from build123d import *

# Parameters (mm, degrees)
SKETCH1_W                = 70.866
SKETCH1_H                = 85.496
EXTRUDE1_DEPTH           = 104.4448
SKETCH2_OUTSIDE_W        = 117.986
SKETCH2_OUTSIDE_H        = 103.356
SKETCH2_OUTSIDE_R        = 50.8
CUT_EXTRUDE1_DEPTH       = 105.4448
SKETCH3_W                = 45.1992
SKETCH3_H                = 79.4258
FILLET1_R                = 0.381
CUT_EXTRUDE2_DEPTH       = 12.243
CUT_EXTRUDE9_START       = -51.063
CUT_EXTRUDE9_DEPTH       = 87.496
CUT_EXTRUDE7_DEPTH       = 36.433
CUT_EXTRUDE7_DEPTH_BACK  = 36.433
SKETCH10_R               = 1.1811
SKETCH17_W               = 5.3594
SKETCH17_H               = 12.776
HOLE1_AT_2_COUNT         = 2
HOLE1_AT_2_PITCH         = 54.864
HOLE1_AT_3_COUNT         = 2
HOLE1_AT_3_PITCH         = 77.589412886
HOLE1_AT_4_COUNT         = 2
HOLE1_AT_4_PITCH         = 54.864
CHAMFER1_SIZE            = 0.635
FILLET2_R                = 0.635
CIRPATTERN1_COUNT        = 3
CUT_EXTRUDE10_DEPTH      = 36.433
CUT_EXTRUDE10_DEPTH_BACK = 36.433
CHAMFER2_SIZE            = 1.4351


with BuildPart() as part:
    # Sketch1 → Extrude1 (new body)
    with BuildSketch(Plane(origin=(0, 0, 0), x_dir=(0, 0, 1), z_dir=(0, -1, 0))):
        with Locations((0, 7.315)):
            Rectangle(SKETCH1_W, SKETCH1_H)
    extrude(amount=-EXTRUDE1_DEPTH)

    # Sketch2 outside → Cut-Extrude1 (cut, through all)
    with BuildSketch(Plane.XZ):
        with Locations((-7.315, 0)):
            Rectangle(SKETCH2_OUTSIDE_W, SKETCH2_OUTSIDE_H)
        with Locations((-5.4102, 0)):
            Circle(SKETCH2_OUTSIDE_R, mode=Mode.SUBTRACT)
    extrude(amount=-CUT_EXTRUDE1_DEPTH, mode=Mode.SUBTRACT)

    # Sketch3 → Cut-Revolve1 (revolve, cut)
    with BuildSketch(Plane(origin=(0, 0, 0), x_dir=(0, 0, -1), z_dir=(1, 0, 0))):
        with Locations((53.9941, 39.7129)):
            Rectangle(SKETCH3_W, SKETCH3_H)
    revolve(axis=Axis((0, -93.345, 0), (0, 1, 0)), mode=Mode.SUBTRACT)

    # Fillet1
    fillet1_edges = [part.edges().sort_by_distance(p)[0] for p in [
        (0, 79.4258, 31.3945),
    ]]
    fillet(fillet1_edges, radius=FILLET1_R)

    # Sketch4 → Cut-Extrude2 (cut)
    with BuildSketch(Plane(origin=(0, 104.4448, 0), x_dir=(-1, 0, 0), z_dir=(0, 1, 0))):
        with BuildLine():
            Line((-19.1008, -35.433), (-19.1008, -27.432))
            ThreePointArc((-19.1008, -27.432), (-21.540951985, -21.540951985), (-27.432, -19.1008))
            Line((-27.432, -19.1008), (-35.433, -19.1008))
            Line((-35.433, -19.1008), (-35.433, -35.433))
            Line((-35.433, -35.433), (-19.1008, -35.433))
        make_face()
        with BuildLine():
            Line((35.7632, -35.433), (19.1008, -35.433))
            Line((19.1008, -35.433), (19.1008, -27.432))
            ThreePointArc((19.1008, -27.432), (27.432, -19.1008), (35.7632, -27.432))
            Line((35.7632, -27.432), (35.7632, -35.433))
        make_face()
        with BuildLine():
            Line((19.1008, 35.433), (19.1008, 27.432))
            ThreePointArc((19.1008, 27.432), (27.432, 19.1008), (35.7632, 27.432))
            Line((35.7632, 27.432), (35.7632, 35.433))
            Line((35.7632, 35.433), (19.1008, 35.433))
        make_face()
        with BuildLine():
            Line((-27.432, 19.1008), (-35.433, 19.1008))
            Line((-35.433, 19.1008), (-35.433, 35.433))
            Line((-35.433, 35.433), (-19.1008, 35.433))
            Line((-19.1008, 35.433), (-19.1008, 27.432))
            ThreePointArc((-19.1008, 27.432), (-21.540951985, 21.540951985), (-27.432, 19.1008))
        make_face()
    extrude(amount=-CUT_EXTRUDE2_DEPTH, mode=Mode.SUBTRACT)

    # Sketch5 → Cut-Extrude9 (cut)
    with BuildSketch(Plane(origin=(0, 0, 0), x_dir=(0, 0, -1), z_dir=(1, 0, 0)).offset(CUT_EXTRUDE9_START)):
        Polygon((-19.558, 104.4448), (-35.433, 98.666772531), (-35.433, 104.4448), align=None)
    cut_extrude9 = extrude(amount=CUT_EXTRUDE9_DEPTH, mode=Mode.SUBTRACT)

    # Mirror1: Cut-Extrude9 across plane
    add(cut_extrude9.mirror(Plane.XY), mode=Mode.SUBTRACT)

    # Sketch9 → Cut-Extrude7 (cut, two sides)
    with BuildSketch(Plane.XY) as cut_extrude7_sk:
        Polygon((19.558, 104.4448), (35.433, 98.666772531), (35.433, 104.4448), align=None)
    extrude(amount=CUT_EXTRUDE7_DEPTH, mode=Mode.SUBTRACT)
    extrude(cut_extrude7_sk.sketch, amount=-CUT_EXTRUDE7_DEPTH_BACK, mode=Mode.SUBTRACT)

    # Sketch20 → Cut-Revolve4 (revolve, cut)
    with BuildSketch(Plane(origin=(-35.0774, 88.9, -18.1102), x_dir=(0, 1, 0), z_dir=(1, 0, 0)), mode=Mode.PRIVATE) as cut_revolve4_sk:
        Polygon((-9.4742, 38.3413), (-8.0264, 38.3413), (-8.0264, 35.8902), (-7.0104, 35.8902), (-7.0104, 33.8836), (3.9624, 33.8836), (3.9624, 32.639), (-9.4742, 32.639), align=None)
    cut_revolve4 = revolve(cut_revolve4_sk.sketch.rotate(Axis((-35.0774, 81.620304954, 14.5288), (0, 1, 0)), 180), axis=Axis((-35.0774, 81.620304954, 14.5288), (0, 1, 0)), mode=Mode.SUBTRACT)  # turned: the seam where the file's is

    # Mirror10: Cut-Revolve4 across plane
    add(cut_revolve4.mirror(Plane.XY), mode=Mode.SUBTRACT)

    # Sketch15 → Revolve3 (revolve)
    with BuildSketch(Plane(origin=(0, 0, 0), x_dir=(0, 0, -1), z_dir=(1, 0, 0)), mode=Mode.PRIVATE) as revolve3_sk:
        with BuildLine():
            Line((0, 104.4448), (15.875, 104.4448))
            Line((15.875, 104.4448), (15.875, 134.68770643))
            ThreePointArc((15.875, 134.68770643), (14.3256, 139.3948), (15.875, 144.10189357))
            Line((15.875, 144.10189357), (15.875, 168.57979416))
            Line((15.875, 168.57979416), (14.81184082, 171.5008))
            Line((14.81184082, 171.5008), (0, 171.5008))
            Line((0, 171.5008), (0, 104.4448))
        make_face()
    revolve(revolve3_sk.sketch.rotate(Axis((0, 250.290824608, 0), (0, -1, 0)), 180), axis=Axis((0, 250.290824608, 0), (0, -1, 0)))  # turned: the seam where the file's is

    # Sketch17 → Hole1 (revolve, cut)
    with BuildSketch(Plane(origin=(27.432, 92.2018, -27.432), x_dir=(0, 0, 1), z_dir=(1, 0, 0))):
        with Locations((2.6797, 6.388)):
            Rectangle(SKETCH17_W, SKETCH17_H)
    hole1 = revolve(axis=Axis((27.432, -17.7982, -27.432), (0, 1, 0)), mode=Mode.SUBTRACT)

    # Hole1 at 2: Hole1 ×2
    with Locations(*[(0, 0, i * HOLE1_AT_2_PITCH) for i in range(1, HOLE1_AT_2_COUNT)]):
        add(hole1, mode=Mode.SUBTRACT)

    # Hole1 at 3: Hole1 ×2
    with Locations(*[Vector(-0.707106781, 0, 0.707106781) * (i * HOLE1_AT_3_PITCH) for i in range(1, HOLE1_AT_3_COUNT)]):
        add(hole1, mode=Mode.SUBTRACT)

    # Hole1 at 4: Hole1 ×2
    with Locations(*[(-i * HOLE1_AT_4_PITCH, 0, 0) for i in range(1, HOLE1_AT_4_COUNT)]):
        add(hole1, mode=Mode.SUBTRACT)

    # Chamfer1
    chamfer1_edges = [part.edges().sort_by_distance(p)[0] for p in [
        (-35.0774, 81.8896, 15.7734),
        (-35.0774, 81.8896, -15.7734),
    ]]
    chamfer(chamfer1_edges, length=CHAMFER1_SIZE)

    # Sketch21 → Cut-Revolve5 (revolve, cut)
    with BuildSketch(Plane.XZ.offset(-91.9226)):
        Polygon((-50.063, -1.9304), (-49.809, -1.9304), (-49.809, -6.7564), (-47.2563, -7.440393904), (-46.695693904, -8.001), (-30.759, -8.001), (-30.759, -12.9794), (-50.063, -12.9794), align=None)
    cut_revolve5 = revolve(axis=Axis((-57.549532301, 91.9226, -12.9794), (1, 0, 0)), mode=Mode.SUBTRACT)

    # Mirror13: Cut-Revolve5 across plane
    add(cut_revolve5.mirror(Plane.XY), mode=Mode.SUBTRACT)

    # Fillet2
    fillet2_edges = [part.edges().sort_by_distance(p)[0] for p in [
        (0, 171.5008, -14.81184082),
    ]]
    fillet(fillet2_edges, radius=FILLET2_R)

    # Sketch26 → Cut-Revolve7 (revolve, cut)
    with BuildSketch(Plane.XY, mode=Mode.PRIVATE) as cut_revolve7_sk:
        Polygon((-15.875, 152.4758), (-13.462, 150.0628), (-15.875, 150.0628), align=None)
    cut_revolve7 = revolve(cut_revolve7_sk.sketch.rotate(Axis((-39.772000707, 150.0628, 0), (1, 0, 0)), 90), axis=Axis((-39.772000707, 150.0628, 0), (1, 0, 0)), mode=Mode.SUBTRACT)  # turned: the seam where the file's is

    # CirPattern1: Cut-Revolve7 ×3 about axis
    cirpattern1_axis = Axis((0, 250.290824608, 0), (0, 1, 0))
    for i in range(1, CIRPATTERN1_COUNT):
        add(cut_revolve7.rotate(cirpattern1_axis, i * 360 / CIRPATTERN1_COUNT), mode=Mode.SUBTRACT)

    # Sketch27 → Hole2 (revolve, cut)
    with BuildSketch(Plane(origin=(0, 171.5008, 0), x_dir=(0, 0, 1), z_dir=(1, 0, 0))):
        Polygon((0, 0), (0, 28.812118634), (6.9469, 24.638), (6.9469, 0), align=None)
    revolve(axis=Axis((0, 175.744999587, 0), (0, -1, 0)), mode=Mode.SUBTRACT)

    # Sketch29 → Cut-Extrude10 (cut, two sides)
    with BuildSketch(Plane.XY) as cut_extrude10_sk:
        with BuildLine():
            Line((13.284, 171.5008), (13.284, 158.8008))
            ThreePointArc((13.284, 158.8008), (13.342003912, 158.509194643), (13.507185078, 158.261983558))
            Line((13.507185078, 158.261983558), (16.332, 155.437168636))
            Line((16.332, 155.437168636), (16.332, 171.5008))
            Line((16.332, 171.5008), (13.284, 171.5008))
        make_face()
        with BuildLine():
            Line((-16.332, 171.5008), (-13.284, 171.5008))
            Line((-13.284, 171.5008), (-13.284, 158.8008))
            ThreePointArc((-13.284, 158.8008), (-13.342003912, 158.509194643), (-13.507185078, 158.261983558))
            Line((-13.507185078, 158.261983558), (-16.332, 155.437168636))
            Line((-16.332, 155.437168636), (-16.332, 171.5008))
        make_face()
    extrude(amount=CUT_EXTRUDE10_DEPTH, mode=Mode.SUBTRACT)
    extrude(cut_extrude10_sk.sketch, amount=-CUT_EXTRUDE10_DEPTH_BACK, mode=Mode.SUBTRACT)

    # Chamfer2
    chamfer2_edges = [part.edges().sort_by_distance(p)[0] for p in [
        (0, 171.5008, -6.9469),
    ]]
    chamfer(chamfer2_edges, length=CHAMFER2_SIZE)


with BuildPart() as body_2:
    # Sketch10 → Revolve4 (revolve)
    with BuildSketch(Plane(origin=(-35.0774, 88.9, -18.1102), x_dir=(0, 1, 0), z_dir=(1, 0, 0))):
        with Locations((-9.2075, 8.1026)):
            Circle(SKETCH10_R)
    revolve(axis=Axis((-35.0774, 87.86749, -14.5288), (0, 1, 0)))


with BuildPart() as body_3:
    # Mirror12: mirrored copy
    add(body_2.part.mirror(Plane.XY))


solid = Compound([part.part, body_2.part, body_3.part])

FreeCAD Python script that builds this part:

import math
import FreeCAD as App
import Part
import Sketcher
from FreeCAD import Vector
Q = App.Units.Quantity


def edges_at(feature, points):
    """Names of the edges that pass closest to the given points."""
    edges = feature.Shape.Edges
    near = lambda p: min(range(len(edges)), key=lambda i: edges[i].distToShape(Part.Vertex(*p))[0])
    return sorted({f"Edge{near(p) + 1}" for p in points})

doc = App.newDocument("Part")
body = doc.addObject("PartDesign::Body", "Body")

# Sketch on XZ plane
sketch1 = doc.addObject("Sketcher::SketchObject", "Sketch")
body.addObject(sketch1)
sketch1.AttachmentSupport = (doc.XZ_Plane, [""])
sketch1.MapMode = "FlatFace"
sketch1.addGeometry(Part.LineSegment(Vector(-50, -35, 0), Vector(35, -35, 0)), False)
sketch1.addGeometry(Part.LineSegment(Vector(35, -35, 0), Vector(35, 35, 0)), False)
sketch1.addGeometry(Part.LineSegment(Vector(35, 35, 0), Vector(-50, 35, 0)), False)
sketch1.addGeometry(Part.LineSegment(Vector(-50, 35, 0), Vector(-50, -35, 0)), False)
sketch1.addConstraint(Sketcher.Constraint("Coincident", 0, 2, 1, 1))
sketch1.addConstraint(Sketcher.Constraint("Coincident", 1, 2, 2, 1))
sketch1.addConstraint(Sketcher.Constraint("Coincident", 2, 2, 3, 1))
sketch1.addConstraint(Sketcher.Constraint("Coincident", 3, 2, 0, 1))
sketch1.addConstraint(Sketcher.Constraint("Horizontal", 0))
sketch1.addConstraint(Sketcher.Constraint("Vertical", 1))
sketch1.addConstraint(Sketcher.Constraint("Horizontal", 2))
sketch1.addConstraint(Sketcher.Constraint("Vertical", 3))
sketch1.addConstraint(Sketcher.Constraint("DistanceY", 1, 1, 1, 2, Q("2.79 in")))
sketch1.addConstraint(Sketcher.Constraint("DistanceX", -1, 1, 0, 2, Q("1.395 in")))
sketch1.addConstraint(Sketcher.Constraint("DistanceY", 0, 2, -1, 1, Q("1.395 in")))
sketch1.addConstraint(Sketcher.Constraint("DistanceX", 0, 1, 0, 2, Q("85.496 mm")))
pad1 = doc.addObject("PartDesign::Pad", "Pad")
body.addObject(pad1)
pad1.Profile = sketch1
pad1.Length = Q("4.112 in")
pad1.Reversed = True

# Sketch on XZ plane
sketch2 = doc.addObject("Sketcher::SketchObject", "Sketch001")
body.addObject(sketch2)
sketch2.AttachmentSupport = (doc.XZ_Plane, [""])
sketch2.MapMode = "FlatFace"
sketch2.addGeometry(Part.LineSegment(Vector(-66, 52, 0), Vector(-66, -52, 0)), False)
sketch2.addGeometry(Part.LineSegment(Vector(-66, -52, 0), Vector(52, -52, 0)), False)
sketch2.addGeometry(Part.LineSegment(Vector(52, -52, 0), Vector(52, 52, 0)), False)
sketch2.addGeometry(Part.LineSegment(Vector(52, 52, 0), Vector(-66, 52, 0)), False)
sketch2.addGeometry(Part.Circle(Vector(-5, 0, 0), Vector(0, 0, 1), 51), False)
sketch2.addConstraint(Sketcher.Constraint("Coincident", 0, 2, 1, 1))
sketch2.addConstraint(Sketcher.Constraint("Coincident", 1, 2, 2, 1))
sketch2.addConstraint(Sketcher.Constraint("Coincident", 2, 2, 3, 1))
sketch2.addConstraint(Sketcher.Constraint("Coincident", 3, 2, 0, 1))
sketch2.addConstraint(Sketcher.Constraint("Vertical", 0))
sketch2.addConstraint(Sketcher.Constraint("Horizontal", 1))
sketch2.addConstraint(Sketcher.Constraint("Vertical", 2))
sketch2.addConstraint(Sketcher.Constraint("Horizontal", 3))
sketch2.addConstraint(Sketcher.Constraint("PointOnObject", 4, 3, -1))
sketch2.addConstraint(Sketcher.Constraint("Diameter", 4, Q("4 in")))
sketch2.addConstraint(Sketcher.Constraint("DistanceX", 4, 3, -1, 1, Q("0.213 in")))
sketch2.addConstraint(Sketcher.Constraint("DistanceX", 1, 1, 1, 2, Q("117.986 mm")))
sketch2.addConstraint(Sketcher.Constraint("DistanceY", 0, 2, 0, 1, Q("103.356 mm")))
sketch2.addConstraint(Sketcher.Constraint("DistanceX", 0, 2, -1, 1, Q("66.308 mm")))
sketch2.addConstraint(Sketcher.Constraint("DistanceY", 0, 2, -1, 1, Q("51.678 mm")))
pocket1 = doc.addObject("PartDesign::Pocket", "Pocket")
body.addObject(pocket1)
pocket1.Profile = sketch2
pocket1.Type = "ThroughAll"

# Sketch on YZ plane
sketch3 = doc.addObject("Sketcher::SketchObject", "Sketch002")
body.addObject(sketch3)
sketch3.AttachmentSupport = (doc.YZ_Plane, [""])
sketch3.MapMode = "FlatFace"
sketch3.addGeometry(Part.LineSegment(Vector(79, -31, 0), Vector(0, -31, 0)), False)
sketch3.addGeometry(Part.LineSegment(Vector(0, -31, 0), Vector(0, -77, 0)), False)
sketch3.addGeometry(Part.LineSegment(Vector(0, -77, 0), Vector(79, -77, 0)), False)
sketch3.addGeometry(Part.LineSegment(Vector(79, -77, 0), Vector(79, -31, 0)), False)
sketch3.addConstraint(Sketcher.Constraint("Coincident", 0, 2, 1, 1))
sketch3.addConstraint(Sketcher.Constraint("Coincident", 1, 2, 2, 1))
sketch3.addConstraint(Sketcher.Constraint("Coincident", 2, 2, 3, 1))
sketch3.addConstraint(Sketcher.Constraint("Coincident", 3, 2, 0, 1))
sketch3.addConstraint(Sketcher.Constraint("Horizontal", 0))
sketch3.addConstraint(Sketcher.Constraint("Vertical", 1))
sketch3.addConstraint(Sketcher.Constraint("Horizontal", 2))
sketch3.addConstraint(Sketcher.Constraint("Vertical", 3))
sketch3.addConstraint(Sketcher.Constraint("PointOnObject", 0, 2, -2))
sketch3.addConstraint(Sketcher.Constraint("DistanceX", 0, 2, 0, 1, Q("3.127 in")))
sketch3.addConstraint(Sketcher.Constraint("DistanceY", 1, 2, 1, 1, Q("45.1992 mm")))
sketch3.addConstraint(Sketcher.Constraint("DistanceY", 1, 2, -1, 1, Q("3.0155 in")))
groove = doc.addObject("PartDesign::Groove", "Groove")
body.addObject(groove)
groove.Profile = sketch3
groove.ReferenceAxis = (sketch3, ["H_Axis"])
groove.Angle = 360
doc.recompute()

fillet = doc.addObject("PartDesign::Fillet", "Fillet")
body.addObject(fillet)
fillet.Base = (groove, edges_at(groove, [(0, 79.426, 31.395)]))
fillet.Radius = Q("0.015 in")

# Sketch on XZ plane
sketch4 = doc.addObject("Sketcher::SketchObject", "Sketch003")
body.addObject(sketch4)
sketch4.AttachmentSupport = (doc.XZ_Plane, [""])
sketch4.MapMode = "FlatFace"
sketch4.AttachmentOffset = App.Placement(Vector(0, 0, -4.112 * 25.4), App.Rotation())
sketch4.addGeometry(Part.LineSegment(Vector(19, -35, 0), Vector(19, -27, 0)), False)
sketch4.addGeometry(Part.ArcOfCircle(Part.Circle(Vector(27, -27, 0), Vector(0, 0, 1), 8), math.radians(90), math.radians(180)), False)
sketch4.addGeometry(Part.LineSegment(Vector(27, -19, 0), Vector(35, -19, 0)), False)
sketch4.addGeometry(Part.LineSegment(Vector(35, -19, 0), Vector(35, -35, 0)), False)
sketch4.addGeometry(Part.LineSegment(Vector(35, -35, 0), Vector(19, -35, 0)), False)
sketch4.addGeometry(Part.LineSegment(Vector(-19, -35, 0), Vector(-36, -35, 0)), False)
sketch4.addGeometry(Part.LineSegment(Vector(-36, -35, 0), Vector(-36, -27, 0)), False)
sketch4.addGeometry(Part.ArcOfCircle(Part.Circle(Vector(-27, -27, 0), Vector(0, 0, 1), 8), math.radians(0), math.radians(180)), False)
sketch4.addGeometry(Part.LineSegment(Vector(-19, -27, 0), Vector(-19, -35, 0)), False)
sketch4.addGeometry(Part.LineSegment(Vector(-19, 35, 0), Vector(-19, 27, 0)), False)
sketch4.addGeometry(Part.ArcOfCircle(Part.Circle(Vector(-27, 27, 0), Vector(0, 0, 1), 8), math.radians(180), math.radians(360)), False)
sketch4.addGeometry(Part.LineSegment(Vector(-36, 27, 0), Vector(-36, 35, 0)), False)
sketch4.addGeometry(Part.LineSegment(Vector(-36, 35, 0), Vector(-19, 35, 0)), False)
sketch4.addGeometry(Part.LineSegment(Vector(35, 19, 0), Vector(27, 19, 0)), False)
sketch4.addGeometry(Part.ArcOfCircle(Part.Circle(Vector(27, 27, 0), Vector(0, 0, 1), 8), math.radians(-180), math.radians(-90)), False)
sketch4.addGeometry(Part.LineSegment(Vector(19, 27, 0), Vector(19, 35, 0)), False)
sketch4.addGeometry(Part.LineSegment(Vector(19, 35, 0), Vector(35, 35, 0)), False)
sketch4.addGeometry(Part.LineSegment(Vector(35, 35, 0), Vector(35, 19, 0)), False)
sketch4.addConstraint(Sketcher.Constraint("Tangent", 0, 2, 1, 2))
sketch4.addConstraint(Sketcher.Constraint("Tangent", 1, 1, 2, 1))
sketch4.addConstraint(Sketcher.Constraint("Coincident", 2, 2, 3, 1))
sketch4.addConstraint(Sketcher.Constraint("Coincident", 3, 2, 4, 1))
sketch4.addConstraint(Sketcher.Constraint("Coincident", 4, 2, 0, 1))
sketch4.addConstraint(Sketcher.Constraint("Coincident", 5, 2, 6, 1))
sketch4.addConstraint(Sketcher.Constraint("Tangent", 6, 2, 7, 2))
sketch4.addConstraint(Sketcher.Constraint("Tangent", 7, 1, 8, 1))
sketch4.addConstraint(Sketcher.Constraint("Coincident", 8, 2, 5, 1))
sketch4.addConstraint(Sketcher.Constraint("Tangent", 9, 2, 10, 2))
sketch4.addConstraint(Sketcher.Constraint("Tangent", 10, 1, 11, 1))
sketch4.addConstraint(Sketcher.Constraint("Coincident", 11, 2, 12, 1))
sketch4.addConstraint(Sketcher.Constraint("Coincident", 12, 2, 9, 1))
sketch4.addConstraint(Sketcher.Constraint("Tangent", 13, 2, 14, 2))
sketch4.addConstraint(Sketcher.Constraint("Tangent", 14, 1, 15, 1))
sketch4.addConstraint(Sketcher.Constraint("Coincident", 15, 2, 16, 1))
sketch4.addConstraint(Sketcher.Constraint("Coincident", 16, 2, 17, 1))
sketch4.addConstraint(Sketcher.Constraint("Coincident", 17, 2, 13, 1))
sketch4.addConstraint(Sketcher.Constraint("Vertical", 0))
sketch4.addConstraint(Sketcher.Constraint("Horizontal", 2))
sketch4.addConstraint(Sketcher.Constraint("Vertical", 3))
sketch4.addConstraint(Sketcher.Constraint("Horizontal", 4))
sketch4.addConstraint(Sketcher.Constraint("Horizontal", 5))
sketch4.addConstraint(Sketcher.Constraint("Vertical", 6))
sketch4.addConstraint(Sketcher.Constraint("Vertical", 8))
sketch4.addConstraint(Sketcher.Constraint("Vertical", 9))
sketch4.addConstraint(Sketcher.Constraint("Vertical", 11))
sketch4.addConstraint(Sketcher.Constraint("Horizontal", 12))
sketch4.addConstraint(Sketcher.Constraint("Horizontal", 13))
sketch4.addConstraint(Sketcher.Constraint("Vertical", 15))
sketch4.addConstraint(Sketcher.Constraint("Horizontal", 16))
sketch4.addConstraint(Sketcher.Constraint("Vertical", 17))
sketch4.addConstraint(Sketcher.Constraint("Equal", 1, 7))
sketch4.addConstraint(Sketcher.Constraint("Equal", 7, 10))
sketch4.addConstraint(Sketcher.Constraint("Equal", 10, 14))
sketch4.addConstraint(Sketcher.Constraint("Symmetric", 1, 3, 10, 3, -1, 1))
sketch4.addConstraint(Sketcher.Constraint("Symmetric", 7, 3, 14, 3, -1, 1))
sketch4.addConstraint(Sketcher.Constraint("Symmetric", 1, 3, 7, 3, -2))
sketch4.addConstraint(Sketcher.Constraint("Symmetric", 3, 2, 16, 2, -1))
sketch4.addConstraint(Sketcher.Constraint("Horizontal", 4, 2, 5, 2))
sketch4.addConstraint(Sketcher.Constraint("Horizontal", 12, 2, 15, 2))
sketch4.addConstraint(Sketcher.Constraint("Equal", 13, 0))
sketch4.addConstraint(Sketcher.Constraint("Radius", 1, Q("0.328 in")))
sketch4.addConstraint(Sketcher.Constraint("DistanceX", 2, 1, 2, 2, Q("0.315 in")))
sketch4.addConstraint(Sketcher.Constraint("DistanceX", -1, 1, 1, 3, Q("1.08 in")))
sketch4.addConstraint(Sketcher.Constraint("DistanceY", 1, 3, -1, 1, Q("1.08 in")))
pocket2 = doc.addObject("PartDesign::Pocket", "Pocket001")
body.addObject(pocket2)
pocket2.Profile = sketch4
pocket2.Length = 12.243
pocket2.Reversed = True

# Sketch on YZ plane
sketch5 = doc.addObject("Sketcher::SketchObject", "Sketch004")
body.addObject(sketch5)
sketch5.AttachmentSupport = (doc.YZ_Plane, [""])
sketch5.MapMode = "FlatFace"
sketch5.AttachmentOffset = App.Placement(Vector(0, 0, -51.063), App.Rotation())
sketch5.addGeometry(Part.LineSegment(Vector(99, 35, 0), Vector(104, 20, 0)), False)
sketch5.addGeometry(Part.LineSegment(Vector(104, 20, 0), Vector(104, 35, 0)), False)
sketch5.addGeometry(Part.LineSegment(Vector(104, 35, 0), Vector(99, 35, 0)), False)
sketch5.addConstraint(Sketcher.Constraint("Coincident", 0, 2, 1, 1))
sketch5.addConstraint(Sketcher.Constraint("Coincident", 1, 2, 2, 1))
sketch5.addConstraint(Sketcher.Constraint("Coincident", 2, 2, 0, 1))
sketch5.addConstraint(Sketcher.Constraint("Vertical", 1))
sketch5.addConstraint(Sketcher.Constraint("Horizontal", 2))
sketch5.addConstraint(Sketcher.Constraint("Angle", 0, Q("-70 deg")))
sketch5.addConstraint(Sketcher.Constraint("DistanceY", 1, 1, 1, 2, Q("0.625 in")))
sketch5.addConstraint(Sketcher.Constraint("DistanceY", -1, 1, 0, 2, Q("0.77 in")))
sketch5.addConstraint(Sketcher.Constraint("DistanceX", -1, 1, 0, 2, Q("4.112 in")))
pocket3 = doc.addObject("PartDesign::Pocket", "Pocket002")
body.addObject(pocket3)
pocket3.Profile = sketch5
pocket3.Length = 87.496
pocket3.Reversed = True
doc.recompute()

mirrored = doc.addObject("PartDesign::Mirrored", "Mirrored")
body.addObject(mirrored)
mirrored.Originals = [pocket3]
mirrored.MirrorPlane = (doc.XY_Plane, [""])
body.Tip = mirrored

# Sketch on XY plane
sketch6 = doc.addObject("Sketcher::SketchObject", "Sketch005")
body.addObject(sketch6)
sketch6.AttachmentSupport = (doc.XY_Plane, [""])
sketch6.MapMode = "FlatFace"
sketch6.addGeometry(Part.LineSegment(Vector(20, 104, 0), Vector(35, 99, 0)), False)
sketch6.addGeometry(Part.LineSegment(Vector(35, 99, 0), Vector(35, 104, 0)), False)
sketch6.addGeometry(Part.LineSegment(Vector(35, 104, 0), Vector(20, 104, 0)), False)
sketch6.addConstraint(Sketcher.Constraint("Coincident", 0, 2, 1, 1))
sketch6.addConstraint(Sketcher.Constraint("Coincident", 1, 2, 2, 1))
sketch6.addConstraint(Sketcher.Constraint("Coincident", 2, 2, 0, 1))
sketch6.addConstraint(Sketcher.Constraint("Vertical", 1))
sketch6.addConstraint(Sketcher.Constraint("Horizontal", 2))
sketch6.addConstraint(Sketcher.Constraint("Angle", 0, Q("-20 deg")))
sketch6.addConstraint(Sketcher.Constraint("DistanceX", 2, 2, 2, 1, Q("0.625 in")))
sketch6.addConstraint(Sketcher.Constraint("DistanceX", -1, 1, 2, 2, Q("0.77 in")))
sketch6.addConstraint(Sketcher.Constraint("DistanceY", -1, 1, 1, 2, Q("4.112 in")))
pocket4 = doc.addObject("PartDesign::Pocket", "Pocket003")
body.addObject(pocket4)
pocket4.Profile = sketch6
pocket4.Type = "ThroughAll"
pocket4.Midplane = True

# Sketch on YZ plane
sketch7 = doc.addObject("Sketcher::SketchObject", "Sketch006")
body.addObject(sketch7)
sketch7.AttachmentSupport = (doc.YZ_Plane, [""])
sketch7.MapMode = "FlatFace"
sketch7.AttachmentOffset = App.Placement(Vector(0, 0, -1.381 * 25.4), App.Rotation())
sketch7.addGeometry(Part.LineSegment(Vector(80.9, 20.2, 0), Vector(79.4, 20.2, 0)), False)
sketch7.addGeometry(Part.LineSegment(Vector(79.4, 20.2, 0), Vector(79.4, 14.5, 0)), False)
sketch7.addGeometry(Part.LineSegment(Vector(79.4, 14.5, 0), Vector(92.9, 14.5, 0)), False)
sketch7.addGeometry(Part.LineSegment(Vector(92.9, 14.5, 0), Vector(92.9, 15.8, 0)), False)
sketch7.addGeometry(Part.LineSegment(Vector(92.9, 15.8, 0), Vector(81.9, 15.8, 0)), False)
sketch7.addGeometry(Part.LineSegment(Vector(81.9, 15.8, 0), Vector(81.9, 17.8, 0)), False)
sketch7.addGeometry(Part.LineSegment(Vector(81.9, 17.8, 0), Vector(80.9, 17.8, 0)), False)
sketch7.addGeometry(Part.LineSegment(Vector(80.9, 17.8, 0), Vector(80.9, 20.2, 0)), False)
sketch7.addGeometry(Part.LineSegment(Vector(79.4, 14.5, 0), Vector(92.9, 14.5, 0)), True)  # axis
sketch7.addConstraint(Sketcher.Constraint("Coincident", 0, 2, 1, 1))
sketch7.addConstraint(Sketcher.Constraint("Coincident", 1, 2, 2, 1))
sketch7.addConstraint(Sketcher.Constraint("Coincident", 2, 2, 3, 1))
sketch7.addConstraint(Sketcher.Constraint("Coincident", 3, 2, 4, 1))
sketch7.addConstraint(Sketcher.Constraint("Coincident", 4, 2, 5, 1))
sketch7.addConstraint(Sketcher.Constraint("Coincident", 5, 2, 6, 1))
sketch7.addConstraint(Sketcher.Constraint("Coincident", 6, 2, 7, 1))
sketch7.addConstraint(Sketcher.Constraint("Coincident", 7, 2, 0, 1))
sketch7.addConstraint(Sketcher.Constraint("Horizontal", 0))
sketch7.addConstraint(Sketcher.Constraint("Vertical", 1))
sketch7.addConstraint(Sketcher.Constraint("Horizontal", 2))
sketch7.addConstraint(Sketcher.Constraint("Vertical", 3))
sketch7.addConstraint(Sketcher.Constraint("Horizontal", 4))
sketch7.addConstraint(Sketcher.Constraint("Vertical", 5))
sketch7.addConstraint(Sketcher.Constraint("Horizontal", 6))
sketch7.addConstraint(Sketcher.Constraint("Vertical", 7))
sketch7.addConstraint(Sketcher.Constraint("Horizontal", 8))
sketch7.addConstraint(Sketcher.Constraint("Coincident", 8, 1, 1, 2))
sketch7.addConstraint(Sketcher.Constraint("Vertical", 3, 2, 8, 2))
sketch7.addConstraint(Sketcher.Constraint("DistanceX", 6, 2, 6, 1, Q("0.04 in")))
sketch7.addConstraint(Sketcher.Constraint("DistanceY", -1, 1, 5, 2, Q("0.7 in")))
sketch7.addConstraint(Sketcher.Constraint("DistanceX", 0, 2, 0, 1, Q("0.057 in")))
sketch7.addConstraint(Sketcher.Constraint("DistanceX", 2, 1, 2, 2, Q("0.529 in")))
sketch7.addConstraint(Sketcher.Constraint("DistanceY", 3, 1, 3, 2, Q("0.049 in")))
sketch7.addConstraint(Sketcher.Constraint("DistanceY", 5, 1, 5, 2, Q("0.079 in")))
sketch7.addConstraint(Sketcher.Constraint("DistanceY", 1, 2, 1, 1, Q("0.2245 in")))
sketch7.addConstraint(Sketcher.Constraint("DistanceX", -1, 1, 0, 2, Q("3.127 in")))
groove2 = doc.addObject("PartDesign::Groove", "Groove001")
body.addObject(groove2)
groove2.Profile = sketch7
groove2.ReferenceAxis = (sketch7, ["Axis0"])
groove2.Angle = 360
doc.recompute()

mirrored2 = doc.addObject("PartDesign::Mirrored", "Mirrored001")
body.addObject(mirrored2)
mirrored2.Originals = [groove2]
mirrored2.MirrorPlane = (doc.XY_Plane, [""])
body.Tip = mirrored2

# Sketch on YZ plane
sketch8 = doc.addObject("Sketcher::SketchObject", "Sketch007")
body.addObject(sketch8)
sketch8.AttachmentSupport = (doc.YZ_Plane, [""])
sketch8.MapMode = "FlatFace"
sketch8.addGeometry(Part.LineSegment(Vector(104.4, 0, 0), Vector(104.4, -15.9, 0)), False)
sketch8.addGeometry(Part.LineSegment(Vector(104.4, -15.9, 0), Vector(134.7, -15.9, 0)), False)
sketch8.addGeometry(Part.ArcOfCircle(Part.Circle(Vector(139.4, -22.3, 0), Vector(0, 0, 1), 7.9), math.radians(54), math.radians(126)), False)
sketch8.addGeometry(Part.LineSegment(Vector(144.1, -15.9, 0), Vector(168.6, -15.9, 0)), False)
sketch8.addGeometry(Part.LineSegment(Vector(168.6, -15.9, 0), Vector(171.5, -14.8, 0)), False)
sketch8.addGeometry(Part.LineSegment(Vector(171.5, -14.8, 0), Vector(171.5, 0, 0)), False)
sketch8.addGeometry(Part.LineSegment(Vector(171.5, 0, 0), Vector(104.4, 0, 0)), False)
sketch8.addConstraint(Sketcher.Constraint("Coincident", 0, 2, 1, 1))
sketch8.addConstraint(Sketcher.Constraint("Coincident", 1, 2, 2, 2))
sketch8.addConstraint(Sketcher.Constraint("Coincident", 2, 1, 3, 1))
sketch8.addConstraint(Sketcher.Constraint("Coincident", 3, 2, 4, 1))
sketch8.addConstraint(Sketcher.Constraint("Coincident", 4, 2, 5, 1))
sketch8.addConstraint(Sketcher.Constraint("Coincident", 5, 2, 6, 1))
sketch8.addConstraint(Sketcher.Constraint("Coincident", 6, 2, 0, 1))
sketch8.addConstraint(Sketcher.Constraint("Vertical", 0))
sketch8.addConstraint(Sketcher.Constraint("Horizontal", 1))
sketch8.addConstraint(Sketcher.Constraint("Horizontal", 3))
sketch8.addConstraint(Sketcher.Constraint("Vertical", 5))
sketch8.addConstraint(Sketcher.Constraint("Horizontal", 6))
sketch8.addConstraint(Sketcher.Constraint("PointOnObject", 5, 2, -1))
sketch8.addConstraint(Sketcher.Constraint("Horizontal", 1, 2, 2, 1))
sketch8.addConstraint(Sketcher.Constraint("Angle", 4, Q("20 deg")))
sketch8.addConstraint(Sketcher.Constraint("Radius", 2, Q("0.312 in")))
sketch8.addConstraint(Sketcher.Constraint("DistanceX", 6, 2, 6, 1, Q("2.64 in")))
sketch8.addConstraint(Sketcher.Constraint("DistanceY", 0, 2, 0, 1, Q("0.625 in")))
sketch8.addConstraint(Sketcher.Constraint("DistanceY", 2, 3, -1, 1, Q("0.876 in")))
sketch8.addConstraint(Sketcher.Constraint("DistanceX", -1, 1, 0, 2, Q("4.112 in")))
sketch8.addConstraint(Sketcher.Constraint("DistanceX", 3, 1, 3, 2, Q("24.477901 mm")))
sketch8.addConstraint(Sketcher.Constraint("DistanceY", 5, 1, 5, 2, Q("14.811841 mm")))
revolution = doc.addObject("PartDesign::Revolution", "Revolution")
body.addObject(revolution)
revolution.Profile = sketch8
revolution.ReferenceAxis = (sketch8, ["H_Axis"])
revolution.Angle = 360

# Sketch on YZ plane
sketch9 = doc.addObject("Sketcher::SketchObject", "Sketch008")
body.addObject(sketch9)
sketch9.AttachmentSupport = (doc.YZ_Plane, [""])
sketch9.MapMode = "FlatFace"
sketch9.AttachmentOffset = App.Placement(Vector(0, 0, 1.08 * 25.4), App.Rotation())
sketch9.addGeometry(Part.LineSegment(Vector(79, -27, 0), Vector(92, -27, 0)), False)
sketch9.addGeometry(Part.LineSegment(Vector(92, -27, 0), Vector(92, -22, 0)), False)
sketch9.addGeometry(Part.LineSegment(Vector(92, -22, 0), Vector(79, -22, 0)), False)
sketch9.addGeometry(Part.LineSegment(Vector(79, -22, 0), Vector(79, -27, 0)), False)
sketch9.addGeometry(Part.LineSegment(Vector(79, -27, 0), Vector(92, -27, 0)), True)  # axis
sketch9.addConstraint(Sketcher.Constraint("Coincident", 0, 2, 1, 1))
sketch9.addConstraint(Sketcher.Constraint("Coincident", 1, 2, 2, 1))
sketch9.addConstraint(Sketcher.Constraint("Coincident", 2, 2, 3, 1))
sketch9.addConstraint(Sketcher.Constraint("Coincident", 3, 2, 0, 1))
sketch9.addConstraint(Sketcher.Constraint("Horizontal", 0))
sketch9.addConstraint(Sketcher.Constraint("Vertical", 1))
sketch9.addConstraint(Sketcher.Constraint("Horizontal", 2))
sketch9.addConstraint(Sketcher.Constraint("Vertical", 3))
sketch9.addConstraint(Sketcher.Constraint("Horizontal", 4))
sketch9.addConstraint(Sketcher.Constraint("Coincident", 4, 1, 3, 2))
sketch9.addConstraint(Sketcher.Constraint("Vertical", 1, 2, 4, 2))
sketch9.addConstraint(Sketcher.Constraint("DistanceY", 1, 1, 1, 2, Q("0.211 in")))
sketch9.addConstraint(Sketcher.Constraint("DistanceY", 0, 2, -1, 1, Q("1.08 in")))
sketch9.addConstraint(Sketcher.Constraint("DistanceX", -1, 1, 2, 2, Q("3.127 in")))
sketch9.addConstraint(Sketcher.Constraint("DistanceX", 0, 1, 0, 2, Q("12.776 mm")))
groove3 = doc.addObject("PartDesign::Groove", "Groove002")
body.addObject(groove3)
groove3.Profile = sketch9
groove3.ReferenceAxis = (sketch9, ["Axis0"])
groove3.Angle = 360
doc.recompute()

linearpattern = doc.addObject("PartDesign::LinearPattern", "LinearPattern")
body.addObject(linearpattern)
linearpattern.Originals = [groove3]
linearpattern.Direction = (doc.Z_Axis, [""])
linearpattern.Mode = "offset"
linearpattern.Offset = Q("2.16 in")
linearpattern.Occurrences = 2
body.Tip = linearpattern
doc.recompute()

datumline = doc.addObject("PartDesign::Line", "DatumLine")
body.addObject(datumline)
datumline.Placement = App.Placement(Vector(0, 0, 0), App.Rotation(Vector(0, 0, 1), Vector(-0.707106781, 0, 0.707106781)))
linearpattern2 = doc.addObject("PartDesign::LinearPattern", "LinearPattern001")
body.addObject(linearpattern2)
linearpattern2.Originals = [groove3]
linearpattern2.Direction = (datumline, [""])
linearpattern2.Mode = "offset"
linearpattern2.Offset = 77.589413
linearpattern2.Occurrences = 2
body.Tip = linearpattern2
doc.recompute()

linearpattern3 = doc.addObject("PartDesign::LinearPattern", "LinearPattern002")
body.addObject(linearpattern3)
linearpattern3.Originals = [groove3]
linearpattern3.Direction = (doc.X_Axis, [""])
linearpattern3.Mode = "offset"
linearpattern3.Offset = Q("2.16 in")
linearpattern3.Occurrences = 2
linearpattern3.Reversed = True
body.Tip = linearpattern3
doc.recompute()

chamfer = doc.addObject("PartDesign::Chamfer", "Chamfer")
body.addObject(chamfer)
chamfer.Base = (linearpattern3, edges_at(linearpattern3, [(-35.077, 81.89, 15.773), (-35.077, 81.89, -15.773)]))
chamfer.Size = Q("0.025 in")

# Sketch on XZ plane
sketch10 = doc.addObject("Sketcher::SketchObject", "Sketch009")
body.addObject(sketch10)
sketch10.AttachmentSupport = (doc.XZ_Plane, [""])
sketch10.MapMode = "FlatFace"
sketch10.AttachmentOffset = App.Placement(Vector(0, 0, -3.619 * 25.4), App.Rotation())
sketch10.addGeometry(Part.LineSegment(Vector(-49.81, -1.93, 0), Vector(-50.06, -1.93, 0)), False)
sketch10.addGeometry(Part.LineSegment(Vector(-50.06, -1.93, 0), Vector(-50.06, -12.98, 0)), False)
sketch10.addGeometry(Part.LineSegment(Vector(-50.06, -12.98, 0), Vector(-30.76, -12.98, 0)), False)
sketch10.addGeometry(Part.LineSegment(Vector(-30.76, -12.98, 0), Vector(-30.76, -8, 0)), False)
sketch10.addGeometry(Part.LineSegment(Vector(-30.76, -8, 0), Vector(-46.7, -8, 0)), False)
sketch10.addGeometry(Part.LineSegment(Vector(-46.7, -8, 0), Vector(-47.26, -7.44, 0)), False)
sketch10.addGeometry(Part.LineSegment(Vector(-47.26, -7.44, 0), Vector(-49.81, -6.76, 0)), False)
sketch10.addGeometry(Part.LineSegment(Vector(-49.81, -6.76, 0), Vector(-49.81, -1.93, 0)), False)
sketch10.addGeometry(Part.LineSegment(Vector(-50.06, -12.98, 0), Vector(-30.76, -12.98, 0)), True)  # axis
sketch10.addConstraint(Sketcher.Constraint("Coincident", 0, 2, 1, 1))
sketch10.addConstraint(Sketcher.Constraint("Coincident", 1, 2, 2, 1))
sketch10.addConstraint(Sketcher.Constraint("Coincident", 2, 2, 3, 1))
sketch10.addConstraint(Sketcher.Constraint("Coincident", 3, 2, 4, 1))
sketch10.addConstraint(Sketcher.Constraint("Coincident", 4, 2, 5, 1))
sketch10.addConstraint(Sketcher.Constraint("Coincident", 5, 2, 6, 1))
sketch10.addConstraint(Sketcher.Constraint("Coincident", 6, 2, 7, 1))
sketch10.addConstraint(Sketcher.Constraint("Coincident", 7, 2, 0, 1))
sketch10.addConstraint(Sketcher.Constraint("Horizontal", 0))
sketch10.addConstraint(Sketcher.Constraint("Vertical", 1))
sketch10.addConstraint(Sketcher.Constraint("Horizontal", 2))
sketch10.addConstraint(Sketcher.Constraint("Vertical", 3))
sketch10.addConstraint(Sketcher.Constraint("Horizontal", 4))
sketch10.addConstraint(Sketcher.Constraint("Vertical", 7))
sketch10.addConstraint(Sketcher.Constraint("Horizontal", 8))
sketch10.addConstraint(Sketcher.Constraint("Coincident", 8, 1, 1, 2))
sketch10.addConstraint(Sketcher.Constraint("Vertical", 3, 2, 8, 2))
sketch10.addConstraint(Sketcher.Constraint("Angle", 5, Q("135 deg")))
sketch10.addConstraint(Sketcher.Constraint("Angle", 6, Q("165 deg")))
sketch10.addConstraint(Sketcher.Constraint("DistanceX", 0, 2, 0, 1, Q("0.01 in")))
sketch10.addConstraint(Sketcher.Constraint("DistanceX", 2, 1, 2, 2, Q("0.76 in")))
sketch10.addConstraint(Sketcher.Constraint("DistanceY", 7, 1, 7, 2, Q("0.19 in")))
sketch10.addConstraint(Sketcher.Constraint("DistanceY", 1, 2, 1, 1, Q("0.435 in")))
sketch10.addConstraint(Sketcher.Constraint("DistanceY", 3, 1, 3, 2, Q("0.196 in")))
sketch10.addConstraint(Sketcher.Constraint("DistanceY", 0, 2, -1, 1, Q("0.076 in")))
sketch10.addConstraint(Sketcher.Constraint("DistanceX", 0, 2, 5, 2, Q("0.1105 in")))
sketch10.addConstraint(Sketcher.Constraint("DistanceX", 0, 2, -1, 1, Q("50.063 mm")))
groove4 = doc.addObject("PartDesign::Groove", "Groove003")
body.addObject(groove4)
groove4.Profile = sketch10
groove4.ReferenceAxis = (sketch10, ["Axis0"])
groove4.Angle = 360
doc.recompute()

mirrored3 = doc.addObject("PartDesign::Mirrored", "Mirrored002")
body.addObject(mirrored3)
mirrored3.Originals = [groove4]
mirrored3.MirrorPlane = (doc.XY_Plane, [""])
body.Tip = mirrored3
doc.recompute()

fillet2 = doc.addObject("PartDesign::Fillet", "Fillet001")
body.addObject(fillet2)
fillet2.Base = (mirrored3, edges_at(mirrored3, [(0, 171.501, -14.812)]))
fillet2.Radius = Q("0.025 in")

# Sketch on XY plane
sketch11 = doc.addObject("Sketcher::SketchObject", "Sketch010")
body.addObject(sketch11)
sketch11.AttachmentSupport = (doc.XY_Plane, [""])
sketch11.MapMode = "FlatFace"
sketch11.addGeometry(Part.LineSegment(Vector(-13.5, 150.1, 0), Vector(-15.9, 152.5, 0)), False)
sketch11.addGeometry(Part.LineSegment(Vector(-15.9, 152.5, 0), Vector(-15.9, 150.1, 0)), False)
sketch11.addGeometry(Part.LineSegment(Vector(-15.9, 150.1, 0), Vector(-13.5, 150.1, 0)), False)
sketch11.addGeometry(Part.LineSegment(Vector(-15.9, 150.1, 0), Vector(-13.5, 150.1, 0)), True)  # axis
sketch11.addConstraint(Sketcher.Constraint("Coincident", 0, 2, 1, 1))
sketch11.addConstraint(Sketcher.Constraint("Coincident", 1, 2, 2, 1))
sketch11.addConstraint(Sketcher.Constraint("Coincident", 2, 2, 0, 1))
sketch11.addConstraint(Sketcher.Constraint("Vertical", 1))
sketch11.addConstraint(Sketcher.Constraint("Horizontal", 2))
sketch11.addConstraint(Sketcher.Constraint("Horizontal", 3))
sketch11.addConstraint(Sketcher.Constraint("Coincident", 3, 1, 1, 2))
sketch11.addConstraint(Sketcher.Constraint("Equal", 2, 3))
sketch11.addConstraint(Sketcher.Constraint("Equal", 3, 1))
sketch11.addConstraint(Sketcher.Constraint("DistanceX", 2, 1, 2, 2, Q("0.095 in")))
sketch11.addConstraint(Sketcher.Constraint("DistanceX", 2, 2, -1, 1, Q("0.53 in")))
sketch11.addConstraint(Sketcher.Constraint("DistanceY", -1, 1, 0, 2, Q("152.4758 mm")))
groove5 = doc.addObject("PartDesign::Groove", "Groove004")
body.addObject(groove5)
groove5.Profile = sketch11
groove5.ReferenceAxis = (sketch11, ["Axis0"])
groove5.Angle = 360
doc.recompute()

polarpattern = doc.addObject("PartDesign::PolarPattern", "PolarPattern")
body.addObject(polarpattern)
polarpattern.Originals = [groove5]
polarpattern.Axis = (doc.Y_Axis, [""])
polarpattern.Angle = 360
polarpattern.Occurrences = 3
body.Tip = polarpattern

# Sketch on YZ plane
sketch12 = doc.addObject("Sketcher::SketchObject", "Sketch011")
body.addObject(sketch12)
sketch12.AttachmentSupport = (doc.YZ_Plane, [""])
sketch12.MapMode = "FlatFace"
sketch12.addGeometry(Part.LineSegment(Vector(143, 0, 0), Vector(172, 0, 0)), False)
sketch12.addGeometry(Part.LineSegment(Vector(172, 0, 0), Vector(172, 7, 0)), False)
sketch12.addGeometry(Part.LineSegment(Vector(172, 7, 0), Vector(147, 7, 0)), False)
sketch12.addGeometry(Part.LineSegment(Vector(147, 7, 0), Vector(143, 0, 0)), False)
sketch12.addConstraint(Sketcher.Constraint("Coincident", 0, 2, 1, 1))
sketch12.addConstraint(Sketcher.Constraint("Coincident", 1, 2, 2, 1))
sketch12.addConstraint(Sketcher.Constraint("Coincident", 2, 2, 3, 1))
sketch12.addConstraint(Sketcher.Constraint("Coincident", 3, 2, 0, 1))
sketch12.addConstraint(Sketcher.Constraint("Horizontal", 0))
sketch12.addConstraint(Sketcher.Constraint("Vertical", 1))
sketch12.addConstraint(Sketcher.Constraint("Horizontal", 2))
sketch12.addConstraint(Sketcher.Constraint("PointOnObject", 0, 2, -1))
sketch12.addConstraint(Sketcher.Constraint("Angle", 3, Q("-121 deg")))
sketch12.addConstraint(Sketcher.Constraint("DistanceX", 2, 2, 2, 1, Q("0.97 in")))
sketch12.addConstraint(Sketcher.Constraint("DistanceY", 1, 1, 1, 2, Q("0.2735 in")))
sketch12.addConstraint(Sketcher.Constraint("DistanceX", -1, 1, 0, 2, Q("6.752 in")))
groove6 = doc.addObject("PartDesign::Groove", "Groove005")
body.addObject(groove6)
groove6.Profile = sketch12
groove6.ReferenceAxis = (sketch12, ["H_Axis"])
groove6.Angle = 360

# Sketch on XY plane
sketch13 = doc.addObject("Sketcher::SketchObject", "Sketch012")
body.addObject(sketch13)
sketch13.AttachmentSupport = (doc.XY_Plane, [""])
sketch13.MapMode = "FlatFace"
sketch13.addGeometry(Part.LineSegment(Vector(13.3, 171.5, 0), Vector(13.3, 158.8, 0)), False)
sketch13.addGeometry(Part.ArcOfCircle(Part.Circle(Vector(14, 158.8, 0), Vector(0, 0, 1), 0.8), math.radians(180), math.radians(225)), False)
sketch13.addGeometry(Part.LineSegment(Vector(13.5, 158.3, 0), Vector(16.3, 155.4, 0)), False)
sketch13.addGeometry(Part.LineSegment(Vector(16.3, 155.4, 0), Vector(16.3, 171.5, 0)), False)
sketch13.addGeometry(Part.LineSegment(Vector(16.3, 171.5, 0), Vector(13.3, 171.5, 0)), False)
sketch13.addGeometry(Part.LineSegment(Vector(-13.3, 171.5, 0), Vector(-16.3, 171.5, 0)), False)
sketch13.addGeometry(Part.LineSegment(Vector(-16.3, 171.5, 0), Vector(-16.3, 155.4, 0)), False)
sketch13.addGeometry(Part.LineSegment(Vector(-16.3, 155.4, 0), Vector(-13.5, 158.3, 0)), False)
sketch13.addGeometry(Part.ArcOfCircle(Part.Circle(Vector(-14, 158.8, 0), Vector(0, 0, 1), 0.8), math.radians(-45), math.radians(0)), False)
sketch13.addGeometry(Part.LineSegment(Vector(-13.3, 158.8, 0), Vector(-13.3, 171.5, 0)), False)
sketch13.addConstraint(Sketcher.Constraint("Tangent", 0, 2, 1, 1))
sketch13.addConstraint(Sketcher.Constraint("Tangent", 1, 2, 2, 1))
sketch13.addConstraint(Sketcher.Constraint("Coincident", 2, 2, 3, 1))
sketch13.addConstraint(Sketcher.Constraint("Coincident", 3, 2, 4, 1))
sketch13.addConstraint(Sketcher.Constraint("Coincident", 4, 2, 0, 1))
sketch13.addConstraint(Sketcher.Constraint("Coincident", 5, 2, 6, 1))
sketch13.addConstraint(Sketcher.Constraint("Coincident", 6, 2, 7, 1))
sketch13.addConstraint(Sketcher.Constraint("Tangent", 7, 2, 8, 1))
sketch13.addConstraint(Sketcher.Constraint("Tangent", 8, 2, 9, 1))
sketch13.addConstraint(Sketcher.Constraint("Coincident", 9, 2, 5, 1))
sketch13.addConstraint(Sketcher.Constraint("Vertical", 0))
sketch13.addConstraint(Sketcher.Constraint("Vertical", 3))
sketch13.addConstraint(Sketcher.Constraint("Horizontal", 4))
sketch13.addConstraint(Sketcher.Constraint("Horizontal", 5))
sketch13.addConstraint(Sketcher.Constraint("Vertical", 6))
sketch13.addConstraint(Sketcher.Constraint("Vertical", 9))
sketch13.addConstraint(Sketcher.Constraint("Equal", 1, 8))
sketch13.addConstraint(Sketcher.Constraint("Symmetric", 1, 3, 8, 3, -2))
sketch13.addConstraint(Sketcher.Constraint("Symmetric", 3, 2, 5, 2, -2))
sketch13.addConstraint(Sketcher.Constraint("Perpendicular", 2, 7))
sketch13.addConstraint(Sketcher.Constraint("Horizontal", 2, 2, 6, 2))
sketch13.addConstraint(Sketcher.Constraint("Radius", 1, Q("0.0300001 in")))
sketch13.addConstraint(Sketcher.Constraint("DistanceY", 0, 2, 0, 1, Q("0.5 in")))
sketch13.addConstraint(Sketcher.Constraint("DistanceX", 4, 2, 4, 1, Q("0.12 in")))
sketch13.addConstraint(Sketcher.Constraint("DistanceY", -1, 1, 1, 3, Q("6.252 in")))
sketch13.addConstraint(Sketcher.Constraint("DistanceX", -1, 1, 1, 3, Q("14.046002 mm")))
pocket5 = doc.addObject("PartDesign::Pocket", "Pocket004")
body.addObject(pocket5)
pocket5.Profile = sketch13
pocket5.Type = "ThroughAll"
pocket5.Midplane = True
doc.recompute()

chamfer2 = doc.addObject("PartDesign::Chamfer", "Chamfer001")
body.addObject(chamfer2)
chamfer2.Base = (pocket5, edges_at(pocket5, [(0, 171.501, -6.947)]))
chamfer2.Size = Q("0.0565 in")
body2 = doc.addObject("PartDesign::Body", "Body001")

# Sketch on YZ plane
sketch14 = doc.addObject("Sketcher::SketchObject", "Sketch013")
body2.addObject(sketch14)
sketch14.AttachmentSupport = (doc.getObject("YZ_Plane001"), [""])
sketch14.MapMode = "FlatFace"
sketch14.AttachmentOffset = App.Placement(Vector(0, 0, -1.381 * 25.4), App.Rotation())
sketch14.addGeometry(Part.Circle(Vector(79.7, -10, 0), Vector(0, 0, 1), 1.2), False)
sketch14.addGeometry(Part.LineSegment(Vector(79.7, -14.5, 0), Vector(89.7, -14.5, 0)), True)  # axis
sketch14.addConstraint(Sketcher.Constraint("Horizontal", 1))
sketch14.addConstraint(Sketcher.Constraint("Vertical", 0, 3, 1, 1))
sketch14.addConstraint(Sketcher.Constraint("Diameter", 0, Q("0.093 in")))
sketch14.addConstraint(Sketcher.Constraint("DistanceY", 0, 3, -1, 1, Q("0.394 in")))
sketch14.addConstraint(Sketcher.Constraint("DistanceY", 1, 1, -1, 1, Q("0.572 in")))
sketch14.addConstraint(Sketcher.Constraint("DistanceX", 1, 1, 1, 2, Q("10 mm")))
sketch14.addConstraint(Sketcher.Constraint("DistanceX", -1, 1, 0, 3, Q("3.1375 in")))
revolution2 = doc.addObject("PartDesign::Revolution", "Revolution001")
body2.addObject(revolution2)
revolution2.Profile = sketch14
revolution2.ReferenceAxis = (sketch14, ["Axis0"])
revolution2.Angle = 360
body3 = doc.addObject("PartDesign::Body", "Body002")
doc.recompute()

mirroring = doc.addObject("Part::Mirroring", "Mirroring")
mirroring.Source = body2
mirroring.Base = Vector(0, 0, 0)
mirroring.Normal = Vector(0, 0, 1)
body3.BaseFeature = mirroring
doc.recompute()
mirroring.Visibility = False

doc.recompute()
